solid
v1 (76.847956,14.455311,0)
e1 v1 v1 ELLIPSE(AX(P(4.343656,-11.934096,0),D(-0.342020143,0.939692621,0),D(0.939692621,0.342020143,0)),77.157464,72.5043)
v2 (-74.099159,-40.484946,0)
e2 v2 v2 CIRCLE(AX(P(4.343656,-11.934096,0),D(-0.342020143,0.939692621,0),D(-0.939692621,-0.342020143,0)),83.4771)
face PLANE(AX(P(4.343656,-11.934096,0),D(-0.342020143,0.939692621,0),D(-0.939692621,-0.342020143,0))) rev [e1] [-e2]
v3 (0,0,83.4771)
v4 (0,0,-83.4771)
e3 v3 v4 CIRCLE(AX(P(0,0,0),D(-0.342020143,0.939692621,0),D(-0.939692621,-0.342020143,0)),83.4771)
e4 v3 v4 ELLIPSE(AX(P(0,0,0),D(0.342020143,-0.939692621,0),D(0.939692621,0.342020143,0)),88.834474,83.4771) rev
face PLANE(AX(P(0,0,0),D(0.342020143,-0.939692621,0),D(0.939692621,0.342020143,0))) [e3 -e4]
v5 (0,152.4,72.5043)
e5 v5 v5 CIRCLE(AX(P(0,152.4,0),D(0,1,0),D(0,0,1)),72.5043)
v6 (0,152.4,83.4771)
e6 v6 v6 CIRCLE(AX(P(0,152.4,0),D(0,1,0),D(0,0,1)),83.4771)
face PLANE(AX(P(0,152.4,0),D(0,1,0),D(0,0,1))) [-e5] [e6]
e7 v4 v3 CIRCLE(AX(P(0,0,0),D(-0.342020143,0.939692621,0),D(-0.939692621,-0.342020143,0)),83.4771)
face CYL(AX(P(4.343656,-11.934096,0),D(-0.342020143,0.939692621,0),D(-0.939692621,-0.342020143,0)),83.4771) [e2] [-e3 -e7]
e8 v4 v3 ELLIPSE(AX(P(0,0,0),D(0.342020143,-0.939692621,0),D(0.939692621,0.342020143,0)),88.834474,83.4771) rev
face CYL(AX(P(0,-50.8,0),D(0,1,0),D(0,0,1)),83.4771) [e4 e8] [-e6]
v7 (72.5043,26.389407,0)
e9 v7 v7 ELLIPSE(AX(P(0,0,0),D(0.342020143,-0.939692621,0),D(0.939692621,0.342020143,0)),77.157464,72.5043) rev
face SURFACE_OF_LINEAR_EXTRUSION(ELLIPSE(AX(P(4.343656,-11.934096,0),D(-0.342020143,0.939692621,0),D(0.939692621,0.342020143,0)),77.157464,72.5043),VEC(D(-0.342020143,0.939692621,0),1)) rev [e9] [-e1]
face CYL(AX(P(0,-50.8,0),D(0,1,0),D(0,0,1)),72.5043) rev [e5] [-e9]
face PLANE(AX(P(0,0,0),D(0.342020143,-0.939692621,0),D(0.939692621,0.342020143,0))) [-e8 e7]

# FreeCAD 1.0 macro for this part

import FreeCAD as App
import Part
import Sketcher
Q = App.Units.Quantity

doc = App.newDocument("Part")
params = doc.addObject("Spreadsheet::Sheet", "Params")
for row, (alias, value) in enumerate([
    ("sketch1_diameter", "6.573 in"),
    ("sketch1_diameter2", "5.709 in"),
    ("pad1_length", "6 in"),
    ("pad1_length2", "2 in"),
    ("sketch2_width", "8 in"),
    ("pocket1_length", "6 in"),
    ("sketch3_diameter", "6.573 in"),
    ("pad2_length", "0.5 in"),
], start=1):
    params.set(f"A{row}", alias)
    params.set(f"B{row}", "=" + value)
    params.setAlias(f"B{row}", alias)

body = doc.addObject("PartDesign::Body", "Body")

sketch1 = doc.addObject("Sketcher::SketchObject", "Sketch")
body.addObject(sketch1)
sketch1.AttachmentSupport = (doc.XZ_Plane, [""])
sketch1.MapMode = "FlatFace"
sketch1.addGeometry([
    Part.Circle(App.Vector(0, 0, 0), App.Vector(0, 0, 1), 83),
    Part.Circle(App.Vector(0, 0, 0), App.Vector(0, 0, 1), 73),
], False)
sketch1.addConstraint([
    Sketcher.Constraint("Coincident", 0, 3, -1, 1),
    Sketcher.Constraint("Coincident", 1, 3, -1, 1),
    Sketcher.Constraint("Diameter", 0, Q("6.573 in")),
    Sketcher.Constraint("Diameter", 1, Q("5.709 in")),
])
sketch1.setExpression("Constraints[2]", "Params.sketch1_diameter")
sketch1.setExpression("Constraints[3]", "Params.sketch1_diameter2")
pad1 = doc.addObject("PartDesign::Pad", "Pad")
body.addObject(pad1)
pad1.Profile = sketch1
pad1.Type = "TwoLengths"
pad1.setExpression("Length", "Params.pad1_length")
pad1.setExpression("Length2", "Params.pad1_length2")
pad1.Reversed = True

sketch2 = doc.addObject("Sketcher::SketchObject", "Sketch001")
body.addObject(sketch2)
sketch2.Placement = App.Placement(App.Vector(0, 0, 0), App.Rotation(App.Vector(0, 0, -1), App.Vector(-0.939692621, -0.342020143, 0), App.Vector(-0.342020143, 0.939692621, 0), "ZXY"))
sketch2.addGeometry([
    Part.LineSegment(App.Vector(-102, 102, 0), App.Vector(-102, -102, 0)),
    Part.LineSegment(App.Vector(-102, -102, 0), App.Vector(102, -102, 0)),
    Part.LineSegment(App.Vector(102, -102, 0), App.Vector(102, 102, 0)),
    Part.LineSegment(App.Vector(102, 102, 0), App.Vector(-102, 102, 0)),
], False)
sketch2.addConstraint([
    Sketcher.Constraint("Coincident", 0, 2, 1, 1),
    Sketcher.Constraint("Coincident", 1, 2, 2, 1),
    Sketcher.Constraint("Coincident", 2, 2, 3, 1),
    Sketcher.Constraint("Coincident", 3, 2, 0, 1),
    Sketcher.Constraint("Vertical", 0),
    Sketcher.Constraint("Horizontal", 1),
    Sketcher.Constraint("Vertical", 2),
    Sketcher.Constraint("Horizontal", 3),
    Sketcher.Constraint("Symmetric", 0, 2, 2, 2, -1, 1),
    Sketcher.Constraint("Equal", 3, 0),
    Sketcher.Constraint("DistanceX", 1, 1, 1, 2, Q("8 in")),
])
sketch2.setExpression("Constraints[10]", "Params.sketch2_width")
pocket1 = doc.addObject("PartDesign::Pocket", "Pocket")
body.addObject(pocket1)
pocket1.Profile = sketch2
pocket1.setExpression("Length", "Params.pocket1_length")

sketch3 = doc.addObject("Sketcher::SketchObject", "Sketch002")
body.addObject(sketch3)
sketch3.Placement = App.Placement(App.Vector(0, 0, 0), App.Rotation(App.Vector(0, 0, -1), App.Vector(-0.939692621, -0.342020143, 0), App.Vector(-0.342020143, 0.939692621, 0), "ZXY"))
sketch3.addGeometry([
    Part.Circle(App.Vector(0, 0, 0), App.Vector(0, 0, 1), 83.4771),
    Part.Ellipse(App.Vector(0, -77.157464, 0), App.Vector(72.5043, 0, 0), App.Vector(0, 0, 0)),
], False)
sketch3.addConstraint([
    Sketcher.Constraint("Block", 1),
    Sketcher.Constraint("Coincident", 0, 3, -1, 1),
    Sketcher.Constraint("Diameter", 0, Q("6.573 in")),
])
sketch3.setExpression("Constraints[2]", "Params.sketch3_diameter")
pad2 = doc.addObject("PartDesign::Pad", "Pad001")
body.addObject(pad2)
pad2.Profile = sketch3
pad2.setExpression("Length", "Params.pad2_length")
pad2.Reversed = True

doc.recompute()
